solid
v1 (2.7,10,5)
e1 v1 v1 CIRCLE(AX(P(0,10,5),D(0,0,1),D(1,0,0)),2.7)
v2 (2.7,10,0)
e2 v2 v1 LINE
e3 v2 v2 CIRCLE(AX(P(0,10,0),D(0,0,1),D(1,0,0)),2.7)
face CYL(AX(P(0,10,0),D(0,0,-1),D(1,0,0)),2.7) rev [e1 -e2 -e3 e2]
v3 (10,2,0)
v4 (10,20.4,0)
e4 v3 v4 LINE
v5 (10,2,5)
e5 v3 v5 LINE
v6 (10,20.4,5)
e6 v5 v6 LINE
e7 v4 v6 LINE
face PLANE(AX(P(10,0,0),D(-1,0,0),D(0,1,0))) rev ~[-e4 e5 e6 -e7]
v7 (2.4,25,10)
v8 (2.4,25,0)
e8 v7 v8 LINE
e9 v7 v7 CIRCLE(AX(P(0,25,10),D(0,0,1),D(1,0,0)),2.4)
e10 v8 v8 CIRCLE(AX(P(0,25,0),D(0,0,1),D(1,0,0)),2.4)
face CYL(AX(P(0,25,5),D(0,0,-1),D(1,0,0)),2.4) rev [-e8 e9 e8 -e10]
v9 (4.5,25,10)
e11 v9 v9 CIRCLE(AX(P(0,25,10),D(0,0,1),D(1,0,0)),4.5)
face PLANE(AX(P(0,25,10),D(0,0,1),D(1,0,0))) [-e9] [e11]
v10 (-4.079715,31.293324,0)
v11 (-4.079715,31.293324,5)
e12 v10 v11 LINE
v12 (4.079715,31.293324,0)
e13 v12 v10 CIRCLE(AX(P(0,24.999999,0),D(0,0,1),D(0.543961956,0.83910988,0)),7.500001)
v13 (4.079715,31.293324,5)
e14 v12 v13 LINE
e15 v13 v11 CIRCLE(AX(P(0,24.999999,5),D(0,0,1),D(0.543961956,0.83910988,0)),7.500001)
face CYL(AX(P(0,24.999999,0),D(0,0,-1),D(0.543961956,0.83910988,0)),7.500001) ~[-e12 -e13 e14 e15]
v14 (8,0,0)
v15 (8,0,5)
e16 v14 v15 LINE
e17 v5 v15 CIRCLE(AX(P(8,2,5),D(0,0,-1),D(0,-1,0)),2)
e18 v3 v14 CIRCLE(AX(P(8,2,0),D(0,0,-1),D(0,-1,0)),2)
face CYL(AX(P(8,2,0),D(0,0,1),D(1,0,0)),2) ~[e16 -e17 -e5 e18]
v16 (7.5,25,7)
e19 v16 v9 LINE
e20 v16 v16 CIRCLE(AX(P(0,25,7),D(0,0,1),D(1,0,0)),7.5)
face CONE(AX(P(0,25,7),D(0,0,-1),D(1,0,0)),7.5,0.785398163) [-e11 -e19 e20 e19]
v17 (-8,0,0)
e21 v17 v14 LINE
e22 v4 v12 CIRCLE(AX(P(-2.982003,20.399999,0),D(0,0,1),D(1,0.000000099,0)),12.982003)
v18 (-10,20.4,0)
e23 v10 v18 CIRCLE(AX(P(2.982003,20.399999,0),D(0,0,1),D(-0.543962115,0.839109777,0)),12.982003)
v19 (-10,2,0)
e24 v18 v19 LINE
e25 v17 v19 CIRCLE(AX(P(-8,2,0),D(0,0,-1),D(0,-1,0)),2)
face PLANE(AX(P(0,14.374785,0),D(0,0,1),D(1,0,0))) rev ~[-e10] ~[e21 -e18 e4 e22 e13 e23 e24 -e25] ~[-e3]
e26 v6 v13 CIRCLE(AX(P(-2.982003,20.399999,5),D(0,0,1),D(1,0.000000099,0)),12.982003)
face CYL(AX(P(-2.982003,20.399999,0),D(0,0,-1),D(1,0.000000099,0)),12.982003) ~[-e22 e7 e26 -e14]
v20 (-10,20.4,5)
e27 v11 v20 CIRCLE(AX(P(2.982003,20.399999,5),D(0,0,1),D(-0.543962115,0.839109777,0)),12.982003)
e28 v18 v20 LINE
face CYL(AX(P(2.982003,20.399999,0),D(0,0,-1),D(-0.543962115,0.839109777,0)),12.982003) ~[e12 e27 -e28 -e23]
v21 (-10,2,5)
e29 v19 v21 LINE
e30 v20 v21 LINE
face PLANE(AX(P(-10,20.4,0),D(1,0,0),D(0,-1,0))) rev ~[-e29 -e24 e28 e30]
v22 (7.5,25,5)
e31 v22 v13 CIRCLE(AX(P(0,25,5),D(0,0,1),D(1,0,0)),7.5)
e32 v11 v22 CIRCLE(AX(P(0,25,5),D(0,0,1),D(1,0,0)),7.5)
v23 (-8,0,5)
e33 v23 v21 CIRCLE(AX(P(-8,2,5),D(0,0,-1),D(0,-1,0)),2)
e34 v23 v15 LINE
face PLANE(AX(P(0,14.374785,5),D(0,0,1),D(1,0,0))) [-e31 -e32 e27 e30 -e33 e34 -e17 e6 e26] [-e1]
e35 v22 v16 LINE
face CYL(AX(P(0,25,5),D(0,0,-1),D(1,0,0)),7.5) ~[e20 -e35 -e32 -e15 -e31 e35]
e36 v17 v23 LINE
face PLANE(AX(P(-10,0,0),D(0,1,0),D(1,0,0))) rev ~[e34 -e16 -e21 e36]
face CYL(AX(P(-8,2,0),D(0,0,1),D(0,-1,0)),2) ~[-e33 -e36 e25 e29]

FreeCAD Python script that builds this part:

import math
import FreeCAD as App
import Part
import Sketcher

V = App.Vector
Q = App.Units.Quantity


def edges_at(feature, points):
    """Names of the edges that pass closest to the given points."""
    edges = feature.Shape.Edges
    near = lambda p: min(range(len(edges)), key=lambda i: edges[i].distToShape(Part.Vertex(*p))[0])
    return sorted({f"Edge{near(p) + 1}" for p in points})

doc = App.newDocument("Part")
body = doc.addObject("PartDesign::Body", "Body")

# Sketch on XY plane
sketch1 = body.newObject("Sketcher::SketchObject", "Sketch")
sketch1.AttachmentSupport = (doc.getObject("XY_Plane"), [""])
sketch1.MapMode = "FlatFace"
sketch1.addGeometry([
    Part.LineSegment(V(-10, 20.4, 0), V(-10, 0, 0)),  # 0
    Part.LineSegment(V(-10, 0, 0), V(10, 0, 0)),  # 1
    Part.LineSegment(V(10, 0, 0), V(10, 20.4, 0)),  # 2
    Part.ArcOfCircle(Part.Circle(V(-2.982003, 20.399999, 0), V(0, 0, 1), 12.982003), math.radians(0.000006), math.radians(57.046233)),  # 3
    Part.ArcOfCircle(Part.Circle(V(0, 24.999999, 0), V(0, 0, 1), 7.500001), math.radians(57.046244), math.radians(122.953756)),  # 4
    Part.ArcOfCircle(Part.Circle(V(2.982003, 20.399999, 0), V(0, 0, 1), 12.982003), math.radians(122.953767), math.radians(179.999994)),  # 5
    Part.Circle(V(0, 10, 0), V(0, 0, 1), 2.7),  # 6
    Part.Circle(V(0, 25, 0), V(0, 0, 1), 2.4),  # 7
], False)
sketch1.addConstraint([
    Sketcher.Constraint("Coincident", 0, 2, 1, 1),
    Sketcher.Constraint("Coincident", 1, 2, 2, 1),
    Sketcher.Constraint("Tangent", 2, 2, 3, 1),
    Sketcher.Constraint("Tangent", 3, 2, 4, 1),
    Sketcher.Constraint("Tangent", 4, 2, 5, 1),
    Sketcher.Constraint("Tangent", 5, 2, 0, 1),
    Sketcher.Constraint("Vertical", 0),
    Sketcher.Constraint("Horizontal", 1),
    Sketcher.Constraint("Vertical", 2),
    Sketcher.Constraint("Coincident", 7, 3, 4, 3),
    Sketcher.Constraint("Equal", 3, 5),
    Sketcher.Constraint("Symmetric", 0, 2, 1, 2, -1, 1),
    Sketcher.Constraint("PointOnObject", 4, 3, -2),
    Sketcher.Constraint("PointOnObject", 6, 3, -2),
    Sketcher.Constraint("Diameter", 6, Q("5.4 mm")),
    Sketcher.Constraint("Diameter", 7, Q("4.8 mm")),
    Sketcher.Constraint("Radius", 4, Q("7.500001 mm")),
    Sketcher.Constraint("DistanceX", 1, 1, 1, 2, Q("20 mm")),
    Sketcher.Constraint("DistanceY", 0, 2, 0, 1, Q("20.4 mm")),
    Sketcher.Constraint("DistanceY", -1, 1, 4, 3, Q("24.999999 mm")),
    Sketcher.Constraint("DistanceY", -1, 1, 6, 3, Q("10 mm")),
])
pad1 = body.newObject("PartDesign::Pad", "Pad")
pad1.Profile = sketch1
pad1.Length = 5

# Sketch on XY plane
sketch2 = body.newObject("Sketcher::SketchObject", "Sketch001")
sketch2.AttachmentSupport = (doc.getObject("XY_Plane"), [""])
sketch2.MapMode = "FlatFace"
sketch2.AttachmentOffset = App.Placement(V(0, 0, 5), App.Rotation())
sketch2.addGeometry([
    Part.Circle(V(0, 25, 0), V(0, 0, 1), 7.5),
    Part.Circle(V(0, 25, 0), V(0, 0, 1), 2.4),
], False)
sketch2.addConstraint([
    Sketcher.Constraint("Coincident", 1, 3, 0, 3),
    Sketcher.Constraint("PointOnObject", 0, 3, -2),
    Sketcher.Constraint("Diameter", 0, Q("15 mm")),
    Sketcher.Constraint("Diameter", 1, Q("4.8 mm")),
    Sketcher.Constraint("DistanceY", -1, 1, 0, 3, Q("25 mm")),
])
pad2 = body.newObject("PartDesign::Pad", "Pad001")
pad2.Profile = sketch2
pad2.Length = 5
doc.recompute()

chamfer = body.newObject("PartDesign::Chamfer", "Chamfer")
chamfer.Base = (pad2, edges_at(pad2, [(-7.5, 25, 10)]))
chamfer.Size = 3
doc.recompute()

fillet = body.newObject("PartDesign::Fillet", "Fillet")
fillet.Base = (chamfer, edges_at(chamfer, [(-10, 0, 2.5), (10, 0, 2.5)]))
fillet.Radius = 2

doc.recompute()
